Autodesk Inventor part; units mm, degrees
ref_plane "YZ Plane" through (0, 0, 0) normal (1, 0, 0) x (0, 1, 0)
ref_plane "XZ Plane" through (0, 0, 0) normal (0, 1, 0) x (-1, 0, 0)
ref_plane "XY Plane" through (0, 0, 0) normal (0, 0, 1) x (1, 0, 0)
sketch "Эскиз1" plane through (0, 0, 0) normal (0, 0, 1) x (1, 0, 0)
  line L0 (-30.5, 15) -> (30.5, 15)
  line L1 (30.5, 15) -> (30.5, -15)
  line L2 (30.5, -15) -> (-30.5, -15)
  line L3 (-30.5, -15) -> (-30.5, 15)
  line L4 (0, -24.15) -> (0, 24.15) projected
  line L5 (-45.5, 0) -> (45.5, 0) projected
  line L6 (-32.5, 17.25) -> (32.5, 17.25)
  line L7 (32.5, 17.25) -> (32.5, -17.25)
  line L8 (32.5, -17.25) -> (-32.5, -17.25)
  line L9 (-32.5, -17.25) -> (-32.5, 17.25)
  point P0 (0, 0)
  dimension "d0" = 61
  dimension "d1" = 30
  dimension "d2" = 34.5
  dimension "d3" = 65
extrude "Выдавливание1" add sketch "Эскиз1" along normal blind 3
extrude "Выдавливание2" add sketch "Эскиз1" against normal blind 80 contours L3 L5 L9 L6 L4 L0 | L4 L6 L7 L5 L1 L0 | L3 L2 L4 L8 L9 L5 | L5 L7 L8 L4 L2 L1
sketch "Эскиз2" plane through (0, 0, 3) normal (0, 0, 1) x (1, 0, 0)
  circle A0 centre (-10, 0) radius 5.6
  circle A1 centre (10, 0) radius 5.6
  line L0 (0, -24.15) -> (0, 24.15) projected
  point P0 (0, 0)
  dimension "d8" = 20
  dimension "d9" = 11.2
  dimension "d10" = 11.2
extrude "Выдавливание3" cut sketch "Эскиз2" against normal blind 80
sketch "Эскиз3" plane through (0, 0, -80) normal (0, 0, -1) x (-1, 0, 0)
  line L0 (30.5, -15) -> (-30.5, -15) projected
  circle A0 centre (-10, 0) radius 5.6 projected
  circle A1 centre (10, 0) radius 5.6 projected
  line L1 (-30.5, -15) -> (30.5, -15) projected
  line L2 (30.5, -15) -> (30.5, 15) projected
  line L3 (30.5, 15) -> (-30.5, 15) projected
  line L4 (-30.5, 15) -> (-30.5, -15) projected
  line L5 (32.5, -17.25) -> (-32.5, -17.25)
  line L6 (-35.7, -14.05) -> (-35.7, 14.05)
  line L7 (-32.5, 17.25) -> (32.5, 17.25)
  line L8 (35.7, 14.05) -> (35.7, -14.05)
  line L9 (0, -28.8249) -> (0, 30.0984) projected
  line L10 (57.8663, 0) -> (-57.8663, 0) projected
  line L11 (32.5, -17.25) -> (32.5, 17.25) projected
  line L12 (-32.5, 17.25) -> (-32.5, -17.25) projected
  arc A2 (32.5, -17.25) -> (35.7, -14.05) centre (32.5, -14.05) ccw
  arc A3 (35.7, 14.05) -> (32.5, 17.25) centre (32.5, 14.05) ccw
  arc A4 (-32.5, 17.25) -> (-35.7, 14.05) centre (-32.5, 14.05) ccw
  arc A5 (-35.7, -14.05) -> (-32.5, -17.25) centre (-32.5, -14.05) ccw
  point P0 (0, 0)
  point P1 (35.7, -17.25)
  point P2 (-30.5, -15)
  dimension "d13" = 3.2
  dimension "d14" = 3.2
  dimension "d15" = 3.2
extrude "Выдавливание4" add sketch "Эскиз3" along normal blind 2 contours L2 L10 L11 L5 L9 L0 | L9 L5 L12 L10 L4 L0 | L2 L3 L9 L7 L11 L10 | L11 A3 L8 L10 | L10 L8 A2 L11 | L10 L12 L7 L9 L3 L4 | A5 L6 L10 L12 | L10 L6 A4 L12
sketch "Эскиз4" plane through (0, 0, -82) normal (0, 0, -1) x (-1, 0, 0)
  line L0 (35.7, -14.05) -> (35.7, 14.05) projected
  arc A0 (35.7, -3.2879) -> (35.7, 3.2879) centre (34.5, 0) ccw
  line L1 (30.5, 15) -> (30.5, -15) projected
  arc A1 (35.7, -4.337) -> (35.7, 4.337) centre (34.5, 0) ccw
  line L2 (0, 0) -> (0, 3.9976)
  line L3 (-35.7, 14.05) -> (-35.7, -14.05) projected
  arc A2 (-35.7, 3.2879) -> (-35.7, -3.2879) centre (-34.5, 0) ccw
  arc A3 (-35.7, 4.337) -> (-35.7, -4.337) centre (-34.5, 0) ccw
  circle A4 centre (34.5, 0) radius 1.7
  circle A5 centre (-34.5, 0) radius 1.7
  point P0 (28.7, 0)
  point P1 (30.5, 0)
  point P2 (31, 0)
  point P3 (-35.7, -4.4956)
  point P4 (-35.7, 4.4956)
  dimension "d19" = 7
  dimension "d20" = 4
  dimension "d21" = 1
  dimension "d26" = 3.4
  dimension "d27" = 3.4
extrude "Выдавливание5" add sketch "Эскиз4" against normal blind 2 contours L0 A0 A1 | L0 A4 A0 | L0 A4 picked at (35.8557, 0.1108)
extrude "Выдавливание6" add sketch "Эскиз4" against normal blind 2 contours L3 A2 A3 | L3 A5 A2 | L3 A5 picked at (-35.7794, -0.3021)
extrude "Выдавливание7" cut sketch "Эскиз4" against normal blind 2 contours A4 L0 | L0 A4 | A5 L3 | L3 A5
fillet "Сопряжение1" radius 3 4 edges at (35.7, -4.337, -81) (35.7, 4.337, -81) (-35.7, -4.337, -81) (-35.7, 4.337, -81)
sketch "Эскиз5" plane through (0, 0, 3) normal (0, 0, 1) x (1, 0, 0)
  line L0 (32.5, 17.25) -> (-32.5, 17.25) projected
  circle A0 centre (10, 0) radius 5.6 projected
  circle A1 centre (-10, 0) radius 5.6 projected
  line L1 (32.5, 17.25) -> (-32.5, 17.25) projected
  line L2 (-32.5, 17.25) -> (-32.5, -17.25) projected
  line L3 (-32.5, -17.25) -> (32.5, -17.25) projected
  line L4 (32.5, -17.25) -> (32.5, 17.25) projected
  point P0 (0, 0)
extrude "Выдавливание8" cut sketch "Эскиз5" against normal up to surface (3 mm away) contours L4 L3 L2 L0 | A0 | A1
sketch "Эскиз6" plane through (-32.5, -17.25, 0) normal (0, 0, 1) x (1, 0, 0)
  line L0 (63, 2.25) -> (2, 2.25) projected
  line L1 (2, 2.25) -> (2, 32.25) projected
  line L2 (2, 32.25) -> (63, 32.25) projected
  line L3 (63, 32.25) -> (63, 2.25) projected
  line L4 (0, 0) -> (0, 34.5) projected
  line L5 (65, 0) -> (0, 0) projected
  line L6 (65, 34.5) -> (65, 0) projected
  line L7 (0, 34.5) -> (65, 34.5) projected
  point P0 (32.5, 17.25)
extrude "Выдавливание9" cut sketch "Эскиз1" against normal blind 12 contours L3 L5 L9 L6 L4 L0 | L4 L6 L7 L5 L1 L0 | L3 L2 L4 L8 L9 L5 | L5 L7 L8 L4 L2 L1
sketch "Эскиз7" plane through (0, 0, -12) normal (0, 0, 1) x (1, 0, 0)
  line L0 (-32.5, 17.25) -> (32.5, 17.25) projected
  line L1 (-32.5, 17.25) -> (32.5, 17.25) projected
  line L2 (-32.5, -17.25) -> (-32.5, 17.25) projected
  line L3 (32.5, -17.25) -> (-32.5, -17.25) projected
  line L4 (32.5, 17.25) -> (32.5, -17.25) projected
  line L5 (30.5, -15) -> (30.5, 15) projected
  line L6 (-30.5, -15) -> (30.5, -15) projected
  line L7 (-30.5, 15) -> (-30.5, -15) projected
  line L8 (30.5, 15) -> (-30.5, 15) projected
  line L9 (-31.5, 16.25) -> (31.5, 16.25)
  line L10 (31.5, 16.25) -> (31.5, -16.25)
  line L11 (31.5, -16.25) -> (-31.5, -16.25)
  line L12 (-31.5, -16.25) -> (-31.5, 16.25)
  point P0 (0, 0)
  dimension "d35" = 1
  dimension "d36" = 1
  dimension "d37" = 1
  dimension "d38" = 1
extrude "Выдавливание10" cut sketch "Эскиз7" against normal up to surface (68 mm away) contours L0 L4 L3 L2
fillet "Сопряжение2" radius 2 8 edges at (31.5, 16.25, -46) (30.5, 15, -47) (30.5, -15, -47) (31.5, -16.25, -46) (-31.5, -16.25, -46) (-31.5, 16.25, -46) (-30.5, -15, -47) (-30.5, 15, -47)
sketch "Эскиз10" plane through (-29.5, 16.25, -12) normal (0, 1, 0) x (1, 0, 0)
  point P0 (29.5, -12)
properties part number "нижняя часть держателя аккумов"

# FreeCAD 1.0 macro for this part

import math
import FreeCAD as App
import Part
import Sketcher

V = App.Vector


def edges_at(feature, points):
    """Names of the edges that pass closest to the given points."""
    edges = feature.Shape.Edges
    near = lambda p: min(range(len(edges)), key=lambda i: edges[i].distToShape(Part.Vertex(*p))[0])
    return sorted({f"Edge{near(p) + 1}" for p in points})


def add_polygon(sketch, points):
    """Adds a closed chain of lines whose ends are joined by coincident constraints."""
    first, n = sketch.GeometryCount, len(points)
    for a, b in zip(points, points[1:] + points[:1]):
        sketch.addGeometry(Part.LineSegment(App.Vector(*a, 0), App.Vector(*b, 0)), False)
    for i in range(n):
        sketch.addConstraint(Sketcher.Constraint("Coincident", first + i, 2, first + (i + 1) % n, 1))

doc = App.newDocument("Part")
params = doc.addObject("Spreadsheet::Sheet", "Params")
for row, (alias, value) in enumerate([
    ("sketch1_width", "65 mm"),
    ("sketch1_height", "34.5 mm"),
    ("pad1_length", "3 mm"),
    ("sketch2_width", "65 mm"),
    ("sketch2_width2", "61 mm"),
    ("sketch2_height", "30 mm"),
    ("sketch2_height2", "34.5 mm"),
    ("pad2_length", "80 mm"),
    ("sketch3_diameter", "11.2 mm"),
    ("pocket1_length", "80 mm"),
    ("sketch4_radius", "3.2 mm"),
    ("sketch4_width", "65 mm"),
    ("sketch4_width2", "61 mm"),
    ("sketch4_height", "30 mm"),
    ("sketch4_height2", "28.1 mm"),
    ("pad3_length", "2 mm"),
    ("sketch5_radius", "4.5 mm"),
    ("pad4_length", "2 mm"),
    ("sketch6_radius", "4.5 mm"),
    ("pad5_length", "2 mm"),
    ("sketch7_diameter", "3.4 mm"),
    ("pocket2_length", "2 mm"),
    ("fillet_radius", "3 mm"),
    ("sketch8_width", "65 mm"),
    ("sketch8_height", "34.5 mm"),
    ("pocket3_length", "3 mm"),
    ("sketch9_width", "65 mm"),
    ("sketch9_width2", "61 mm"),
    ("sketch9_height", "30 mm"),
    ("sketch9_height2", "34.5 mm"),
    ("pocket4_length", "12 mm"),
    ("sketch10_width", "65 mm"),
    ("sketch10_height", "34.5 mm"),
    ("pocket5_length", "68 mm"),
    ("fillet2_radius", "2 mm"),
], start=1):
    params.set(f"A{row}", alias)
    params.set(f"B{row}", "=" + value)
    params.setAlias(f"B{row}", alias)

body = doc.addObject("PartDesign::Body", "Body")

# Sketch on XY plane
sketch1 = body.newObject("Sketcher::SketchObject", "Sketch")
sketch1.AttachmentSupport = (doc.getObject("XY_Plane"), [""])
sketch1.MapMode = "FlatFace"
add_polygon(sketch1, [(-32, 17), (-32, -17), (32, -17), (32, 17)])  # lines 0-3
sketch1.addConstraint([
    Sketcher.Constraint("Vertical", 0),
    Sketcher.Constraint("Horizontal", 1),
    Sketcher.Constraint("Vertical", 2),
    Sketcher.Constraint("Horizontal", 3),
    Sketcher.Constraint("Symmetric", 0, 2, 2, 2, -1, 1),
    Sketcher.Constraint("DistanceX", 1, 1, 1, 2, 65.0),
    Sketcher.Constraint("DistanceY", 0, 2, 0, 1, 34.5),
])
sketch1.setExpression("Constraints[9]", "Params.sketch1_width")
sketch1.setExpression("Constraints[10]", "Params.sketch1_height")
pad1 = body.newObject("PartDesign::Pad", "Pad")
pad1.Profile = sketch1
pad1.setExpression("Length", "Params.pad1_length")

# Sketch on XY plane
sketch2 = body.newObject("Sketcher::SketchObject", "Sketch001")
sketch2.AttachmentSupport = (doc.getObject("XY_Plane"), [""])
sketch2.MapMode = "FlatFace"
add_polygon(sketch2, [(-32, 17), (-32, -17), (32, -17), (32, 17)])  # lines 0-3
add_polygon(sketch2, [(-30, 15), (30, 15), (30, -15), (-30, -15)])  # lines 4-7
sketch2.addConstraint([
    Sketcher.Constraint("Vertical", 0),
    Sketcher.Constraint("Horizontal", 1),
    Sketcher.Constraint("Vertical", 2),
    Sketcher.Constraint("Horizontal", 3),
    Sketcher.Constraint("Horizontal", 4),
    Sketcher.Constraint("Vertical", 5),
    Sketcher.Constraint("Horizontal", 6),
    Sketcher.Constraint("Vertical", 7),
    Sketcher.Constraint("Symmetric", 0, 2, 2, 2, -1, 1),
    Sketcher.Constraint("Symmetric", 4, 2, 6, 2, -1, 1),
    Sketcher.Constraint("DistanceX", 1, 1, 1, 2, 65.0),
    Sketcher.Constraint("DistanceX", 4, 1, 4, 2, 61.0),
    Sketcher.Constraint("DistanceY", 5, 2, 5, 1, 30.0),
    Sketcher.Constraint("DistanceY", 0, 2, 0, 1, 34.5),
])
sketch2.setExpression("Constraints[18]", "Params.sketch2_width")
sketch2.setExpression("Constraints[19]", "Params.sketch2_width2")
sketch2.setExpression("Constraints[20]", "Params.sketch2_height")
sketch2.setExpression("Constraints[21]", "Params.sketch2_height2")
pad2 = body.newObject("PartDesign::Pad", "Pad001")
pad2.Profile = sketch2
pad2.setExpression("Length", "Params.pad2_length")
pad2.Reversed = True

# Sketch on XY plane
sketch3 = body.newObject("Sketcher::SketchObject", "Sketch002")
sketch3.AttachmentSupport = (doc.getObject("XY_Plane"), [""])
sketch3.MapMode = "FlatFace"
sketch3.AttachmentOffset = App.Placement(V(0, 0, 3), App.Rotation())
sketch3.addGeometry([
    Part.Circle(V(-10, 0, 0), V(0, 0, 1), 6),
    Part.Circle(V(10, 0, 0), V(0, 0, 1), 6),
], False)
sketch3.addConstraint([
    Sketcher.Constraint("Equal", 0, 1),
    Sketcher.Constraint("Symmetric", 0, 3, 1, 3, -1, 1),
    Sketcher.Constraint("PointOnObject", 0, 3, -1),
    Sketcher.Constraint("Diameter", 0, 11.2),
    Sketcher.Constraint("DistanceX", 0, 3, 1, 3, 20.0),
])
sketch3.setExpression("Constraints[3]", "Params.sketch3_diameter")
pocket1 = body.newObject("PartDesign::Pocket", "Pocket")
pocket1.Profile = sketch3
pocket1.setExpression("Length", "Params.pocket1_length")

# Sketch on XY plane
sketch4 = body.newObject("Sketcher::SketchObject", "Sketch003")
sketch4.AttachmentSupport = (doc.getObject("XY_Plane"), [""])
sketch4.MapMode = "FlatFace"
sketch4.AttachmentOffset = App.Placement(V(0, 0, -80), App.Rotation())
sketch4.addGeometry(Part.ArcOfCircle(Part.Circle(V(-32.5, -14.1, 0), V(0, 0, 1), 3.2), math.radians(180), math.radians(270)), False)  # 0
sketch4.addGeometry(Part.LineSegment(V(-35.7, -14.1, 0), V(-35.7, 14.1, 0)), False)  # 1
sketch4.addGeometry(Part.ArcOfCircle(Part.Circle(V(-32.5, 14.1, 0), V(0, 0, 1), 3.2), math.radians(90), math.radians(180)), False)  # 2
sketch4.addGeometry(Part.LineSegment(V(-32.5, 17.2, 0), V(32.5, 17.2, 0)), False)  # 3
sketch4.addGeometry(Part.ArcOfCircle(Part.Circle(V(32.5, 14.1, 0), V(0, 0, 1), 3.2), math.radians(0), math.radians(90)), False)  # 4
sketch4.addGeometry(Part.LineSegment(V(35.7, 14.1, 0), V(35.7, -14.1, 0)), False)  # 5
sketch4.addGeometry(Part.ArcOfCircle(Part.Circle(V(32.5, -14.1, 0), V(0, 0, 1), 3.2), math.radians(-90), math.radians(0)), False)  # 6
sketch4.addGeometry(Part.LineSegment(V(32.5, -17.2, 0), V(-32.5, -17.2, 0)), False)  # 7
add_polygon(sketch4, [(-30.5, -15), (30.5, -15), (30.5, 15), (-30.5, 15)])  # lines 8-11
sketch4.addConstraint([
    Sketcher.Constraint("Tangent", 0, 1, 1, 1),
    Sketcher.Constraint("Tangent", 1, 2, 2, 2),
    Sketcher.Constraint("Tangent", 2, 1, 3, 1),
    Sketcher.Constraint("Tangent", 3, 2, 4, 2),
    Sketcher.Constraint("Tangent", 4, 1, 5, 1),
    Sketcher.Constraint("Tangent", 5, 2, 6, 2),
    Sketcher.Constraint("Tangent", 6, 1, 7, 1),
    Sketcher.Constraint("Tangent", 7, 2, 0, 2),
    Sketcher.Constraint("Vertical", 1),
    Sketcher.Constraint("Horizontal", 3),
    Sketcher.Constraint("Vertical", 5),
    Sketcher.Constraint("Horizontal", 7),
    Sketcher.Constraint("Horizontal", 8),
    Sketcher.Constraint("Vertical", 9),
    Sketcher.Constraint("Horizontal", 10),
    Sketcher.Constraint("Vertical", 11),
    Sketcher.Constraint("Equal", 0, 2),
    Sketcher.Constraint("Equal", 2, 4),
    Sketcher.Constraint("Equal", 4, 6),
    Sketcher.Constraint("Symmetric", 0, 3, 4, 3, -1, 1),
    Sketcher.Constraint("Symmetric", 8, 2, 10, 2, -1, 1),
    Sketcher.Constraint("Radius", 0, 3.2),
    Sketcher.Constraint("DistanceX", 3, 1, 3, 2, 65.0),
    Sketcher.Constraint("DistanceX", 8, 1, 8, 2, 61.0),
    Sketcher.Constraint("DistanceY", 9, 1, 9, 2, 30.0),
    Sketcher.Constraint("DistanceY", 1, 1, 1, 2, 28.1),
])
sketch4.setExpression("Constraints[25]", "Params.sketch4_radius")
sketch4.setExpression("Constraints[26]", "Params.sketch4_width")
sketch4.setExpression("Constraints[27]", "Params.sketch4_width2")
sketch4.setExpression("Constraints[28]", "Params.sketch4_height")
sketch4.setExpression("Constraints[29]", "Params.sketch4_height2")
pad3 = body.newObject("PartDesign::Pad", "Pad002")
pad3.Profile = sketch4
pad3.setExpression("Length", "Params.pad3_length")
pad3.Reversed = True

# Sketch on XY plane
sketch5 = body.newObject("Sketcher::SketchObject", "Sketch004")
sketch5.AttachmentSupport = (doc.getObject("XY_Plane"), [""])
sketch5.MapMode = "FlatFace"
sketch5.AttachmentOffset = App.Placement(V(0, 0, -82), App.Rotation())
sketch5.addGeometry([
    Part.ArcOfCircle(Part.Circle(V(-34.5, 0, 0), V(0, 0, 1), 4.5), math.radians(105), math.radians(255)),
    Part.LineSegment(V(-35.7, 4.3, 0), V(-35.7, -4.3, 0)),
], False)
sketch5.addConstraint([
    Sketcher.Constraint("Coincident", 0, 1, 1, 1),
    Sketcher.Constraint("Coincident", 1, 2, 0, 2),
    Sketcher.Constraint("Vertical", 1),
    Sketcher.Constraint("PointOnObject", 0, 3, -1),
    Sketcher.Constraint("Radius", 0, 4.5),
    Sketcher.Constraint("DistanceX", 0, 3, -1, 1, 34.5),
    Sketcher.Constraint("DistanceX", 0, 1, -1, 1, 35.7),
])
sketch5.setExpression("Constraints[4]", "Params.sketch5_radius")
pad4 = body.newObject("PartDesign::Pad", "Pad003")
pad4.Profile = sketch5
pad4.setExpression("Length", "Params.pad4_length")

# Sketch on XY plane
sketch6 = body.newObject("Sketcher::SketchObject", "Sketch005")
sketch6.AttachmentSupport = (doc.getObject("XY_Plane"), [""])
sketch6.MapMode = "FlatFace"
sketch6.AttachmentOffset = App.Placement(V(0, 0, -82), App.Rotation())
sketch6.addGeometry([
    Part.ArcOfCircle(Part.Circle(V(34.5, 0, 0), V(0, 0, 1), 4.5), math.radians(-75), math.radians(75)),
    Part.LineSegment(V(35.7, -4.3, 0), V(35.7, 4.3, 0)),
], False)
sketch6.addConstraint([
    Sketcher.Constraint("Coincident", 0, 1, 1, 1),
    Sketcher.Constraint("Coincident", 1, 2, 0, 2),
    Sketcher.Constraint("Vertical", 1),
    Sketcher.Constraint("PointOnObject", 0, 3, -1),
    Sketcher.Constraint("Radius", 0, 4.5),
    Sketcher.Constraint("DistanceX", -1, 1, 0, 3, 34.5),
    Sketcher.Constraint("DistanceX", -1, 1, 0, 1, 35.7),
])
sketch6.setExpression("Constraints[4]", "Params.sketch6_radius")
pad5 = body.newObject("PartDesign::Pad", "Pad004")
pad5.Profile = sketch6
pad5.setExpression("Length", "Params.pad5_length")

# Sketch on XY plane
sketch7 = body.newObject("Sketcher::SketchObject", "Sketch006")
sketch7.AttachmentSupport = (doc.getObject("XY_Plane"), [""])
sketch7.MapMode = "FlatFace"
sketch7.AttachmentOffset = App.Placement(V(0, 0, -82), App.Rotation())
sketch7.addGeometry([
    Part.Circle(V(-34.5, 0, 0), V(0, 0, 1), 1.7),
    Part.Circle(V(34.5, 0, 0), V(0, 0, 1), 1.7),
], False)
sketch7.addConstraint([
    Sketcher.Constraint("Equal", 0, 1),
    Sketcher.Constraint("Symmetric", 0, 3, 1, 3, -1, 1),
    Sketcher.Constraint("PointOnObject", 0, 3, -1),
    Sketcher.Constraint("Diameter", 0, 3.4),
    Sketcher.Constraint("DistanceX", 0, 3, 1, 3, 69.0),
])
sketch7.setExpression("Constraints[3]", "Params.sketch7_diameter")
pocket2 = body.newObject("PartDesign::Pocket", "Pocket001")
pocket2.Profile = sketch7
pocket2.setExpression("Length", "Params.pocket2_length")
pocket2.Reversed = True
doc.recompute()

fillet = body.newObject("PartDesign::Fillet", "Fillet")
fillet.Base = (pocket2, edges_at(pocket2, [
    (35.7, -4.337, -81),
    (35.7, 4.337, -81),
    (-35.7, -4.337, -81),
    (-35.7, 4.337, -81),
]))
fillet.setExpression("Radius", "Params.fillet_radius")

# Sketch on XY plane
sketch8 = body.newObject("Sketcher::SketchObject", "Sketch007")
sketch8.AttachmentSupport = (doc.getObject("XY_Plane"), [""])
sketch8.MapMode = "FlatFace"
sketch8.AttachmentOffset = App.Placement(V(0, 0, 3), App.Rotation())
add_polygon(sketch8, [(32, -17), (32, 17), (-32, 17), (-32, -17)])  # lines 0-3
sketch8.addConstraint([
    Sketcher.Constraint("Vertical", 0),
    Sketcher.Constraint("Horizontal", 1),
    Sketcher.Constraint("Vertical", 2),
    Sketcher.Constraint("Horizontal", 3),
    Sketcher.Constraint("Symmetric", 0, 2, 2, 2, -1, 1),
    Sketcher.Constraint("DistanceX", 1, 2, 1, 1, 65.0),
    Sketcher.Constraint("DistanceY", 0, 1, 0, 2, 34.5),
])
sketch8.setExpression("Constraints[9]", "Params.sketch8_width")
sketch8.setExpression("Constraints[10]", "Params.sketch8_height")
pocket3 = body.newObject("PartDesign::Pocket", "Pocket002")
pocket3.Profile = sketch8
pocket3.setExpression("Length", "Params.pocket3_length")

# Sketch on XY plane
sketch9 = body.newObject("Sketcher::SketchObject", "Sketch008")
sketch9.AttachmentSupport = (doc.getObject("XY_Plane"), [""])
sketch9.MapMode = "FlatFace"
add_polygon(sketch9, [(-32, 17), (-32, -17), (32, -17), (32, 17)])  # lines 0-3
add_polygon(sketch9, [(-30, 15), (30, 15), (30, -15), (-30, -15)])  # lines 4-7
sketch9.addConstraint([
    Sketcher.Constraint("Vertical", 0),
    Sketcher.Constraint("Horizontal", 1),
    Sketcher.Constraint("Vertical", 2),
    Sketcher.Constraint("Horizontal", 3),
    Sketcher.Constraint("Horizontal", 4),
    Sketcher.Constraint("Vertical", 5),
    Sketcher.Constraint("Horizontal", 6),
    Sketcher.Constraint("Vertical", 7),
    Sketcher.Constraint("Symmetric", 0, 2, 2, 2, -1, 1),
    Sketcher.Constraint("Symmetric", 4, 2, 6, 2, -1, 1),
    Sketcher.Constraint("DistanceX", 1, 1, 1, 2, 65.0),
    Sketcher.Constraint("DistanceX", 4, 1, 4, 2, 61.0),
    Sketcher.Constraint("DistanceY", 5, 2, 5, 1, 30.0),
    Sketcher.Constraint("DistanceY", 0, 2, 0, 1, 34.5),
])
sketch9.setExpression("Constraints[18]", "Params.sketch9_width")
sketch9.setExpression("Constraints[19]", "Params.sketch9_width2")
sketch9.setExpression("Constraints[20]", "Params.sketch9_height")
sketch9.setExpression("Constraints[21]", "Params.sketch9_height2")
pocket4 = body.newObject("PartDesign::Pocket", "Pocket003")
pocket4.Profile = sketch9
pocket4.setExpression("Length", "Params.pocket4_length")

# Sketch on XY plane
sketch10 = body.newObject("Sketcher::SketchObject", "Sketch009")
sketch10.AttachmentSupport = (doc.getObject("XY_Plane"), [""])
sketch10.MapMode = "FlatFace"
sketch10.AttachmentOffset = App.Placement(V(0, 0, -12), App.Rotation())
add_polygon(sketch10, [(32, 17), (-32, 17), (-32, -17), (32, -17)])  # lines 0-3
add_polygon(sketch10, [(-32, -16), (-32, 16), (32, 16), (32, -16)])  # lines 4-7
sketch10.addConstraint([
    Sketcher.Constraint("Horizontal", 0),
    Sketcher.Constraint("Vertical", 1),
    Sketcher.Constraint("Horizontal", 2),
    Sketcher.Constraint("Vertical", 3),
    Sketcher.Constraint("Vertical", 4),
    Sketcher.Constraint("Horizontal", 5),
    Sketcher.Constraint("Vertical", 6),
    Sketcher.Constraint("Horizontal", 7),
    Sketcher.Constraint("Symmetric", 0, 2, 2, 2, -1, 1),
    Sketcher.Constraint("Symmetric", 4, 2, 6, 2, -1, 1),
    Sketcher.Constraint("DistanceX", 0, 2, 4, 2, 1.0),
    Sketcher.Constraint("DistanceY", 4, 2, 0, 2, 1.0),
    Sketcher.Constraint("DistanceX", 0, 2, 0, 1, 65.0),
    Sketcher.Constraint("DistanceY", 1, 2, 1, 1, 34.5),
])
sketch10.setExpression("Constraints[20]", "Params.sketch10_width")
sketch10.setExpression("Constraints[21]", "Params.sketch10_height")
pocket5 = body.newObject("PartDesign::Pocket", "Pocket004")
pocket5.Profile = sketch10
pocket5.setExpression("Length", "Params.pocket5_length")
doc.recompute()

fillet2 = body.newObject("PartDesign::Fillet", "Fillet001")
fillet2.Base = (pocket5, edges_at(pocket5, [
    (31.5, 16.25, -46),
    (30.5, 15, -47),
    (30.5, -15, -47),
    (31.5, -16.25, -46),
    (-31.5, -16.25, -46),
    (-31.5, 16.25, -46),
    (-30.5, -15, -47),
    (-30.5, 15, -47),
]))
fillet2.setExpression("Radius", "Params.fillet2_radius")

doc.recompute()
